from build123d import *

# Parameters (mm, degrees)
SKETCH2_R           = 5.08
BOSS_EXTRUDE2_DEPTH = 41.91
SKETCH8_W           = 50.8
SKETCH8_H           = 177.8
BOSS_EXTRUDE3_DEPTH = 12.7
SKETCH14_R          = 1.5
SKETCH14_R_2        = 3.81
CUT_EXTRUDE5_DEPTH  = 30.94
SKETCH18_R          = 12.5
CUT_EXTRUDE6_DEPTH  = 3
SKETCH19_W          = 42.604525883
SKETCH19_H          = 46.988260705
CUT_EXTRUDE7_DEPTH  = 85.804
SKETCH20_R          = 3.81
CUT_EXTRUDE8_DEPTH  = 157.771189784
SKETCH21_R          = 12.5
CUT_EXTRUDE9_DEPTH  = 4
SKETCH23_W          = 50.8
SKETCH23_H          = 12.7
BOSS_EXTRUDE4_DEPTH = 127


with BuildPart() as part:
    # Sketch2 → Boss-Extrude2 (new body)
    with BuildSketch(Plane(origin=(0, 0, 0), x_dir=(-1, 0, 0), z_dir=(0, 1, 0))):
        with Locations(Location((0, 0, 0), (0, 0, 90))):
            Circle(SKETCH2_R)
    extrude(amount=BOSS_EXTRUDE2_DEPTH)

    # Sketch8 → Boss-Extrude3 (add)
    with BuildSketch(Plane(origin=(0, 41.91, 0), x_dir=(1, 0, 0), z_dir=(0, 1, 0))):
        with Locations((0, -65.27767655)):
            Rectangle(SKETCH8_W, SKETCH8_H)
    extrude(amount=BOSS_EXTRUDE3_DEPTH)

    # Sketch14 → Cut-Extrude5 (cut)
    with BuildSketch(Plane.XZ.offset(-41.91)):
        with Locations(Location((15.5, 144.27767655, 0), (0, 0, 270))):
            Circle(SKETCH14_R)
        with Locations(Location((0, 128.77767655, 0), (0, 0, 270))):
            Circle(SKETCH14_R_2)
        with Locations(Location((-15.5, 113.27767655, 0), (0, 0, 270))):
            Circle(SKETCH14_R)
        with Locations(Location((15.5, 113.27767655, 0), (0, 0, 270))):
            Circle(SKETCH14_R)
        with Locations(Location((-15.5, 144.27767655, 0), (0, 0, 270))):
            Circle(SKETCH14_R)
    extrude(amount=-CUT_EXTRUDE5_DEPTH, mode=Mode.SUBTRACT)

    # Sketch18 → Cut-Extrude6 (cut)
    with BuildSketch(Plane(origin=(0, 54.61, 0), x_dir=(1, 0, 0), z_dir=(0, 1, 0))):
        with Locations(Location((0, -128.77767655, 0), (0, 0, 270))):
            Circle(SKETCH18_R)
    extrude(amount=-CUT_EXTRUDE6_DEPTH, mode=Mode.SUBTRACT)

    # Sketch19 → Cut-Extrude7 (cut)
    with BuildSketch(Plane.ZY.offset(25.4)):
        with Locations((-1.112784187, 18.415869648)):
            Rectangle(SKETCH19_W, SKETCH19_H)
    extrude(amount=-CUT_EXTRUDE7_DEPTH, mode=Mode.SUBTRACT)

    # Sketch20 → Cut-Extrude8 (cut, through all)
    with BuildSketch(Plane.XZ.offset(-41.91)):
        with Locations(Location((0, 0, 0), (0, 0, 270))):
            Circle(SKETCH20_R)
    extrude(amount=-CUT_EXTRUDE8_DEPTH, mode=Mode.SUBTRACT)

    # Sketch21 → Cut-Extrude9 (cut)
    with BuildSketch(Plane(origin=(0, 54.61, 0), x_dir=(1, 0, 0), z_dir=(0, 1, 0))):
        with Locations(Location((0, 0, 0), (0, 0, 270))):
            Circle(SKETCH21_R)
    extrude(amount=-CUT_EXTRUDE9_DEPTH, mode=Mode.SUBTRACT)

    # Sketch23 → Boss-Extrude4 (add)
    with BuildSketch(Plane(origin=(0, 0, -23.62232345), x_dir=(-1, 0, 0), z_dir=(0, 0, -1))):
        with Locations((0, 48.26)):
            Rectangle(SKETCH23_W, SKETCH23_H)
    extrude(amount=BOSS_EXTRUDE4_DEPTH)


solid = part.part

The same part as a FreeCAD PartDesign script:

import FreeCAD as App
import Part
import Sketcher

V = App.Vector
Q = App.Units.Quantity

doc = App.newDocument("Part")
body = doc.addObject("PartDesign::Body", "Body")

sketch1 = doc.addObject("Sketcher::SketchObject", "Sketch")
body.addObject(sketch1)
sketch1.AttachmentSupport = (doc.XZ_Plane, [""])
sketch1.MapMode = "FlatFace"
sketch1.addGeometry(Part.Circle(V(0, 0, 0), V(0, 0, 1), 5), False)
sketch1.addConstraint([
    Sketcher.Constraint("Coincident", 0, 3, -1, 1),
    Sketcher.Constraint("Diameter", 0, Q("0.4 in")),
])
pad1 = doc.addObject("PartDesign::Pad", "Pad")
body.addObject(pad1)
pad1.Profile = sketch1
pad1.Length = Q("1.65 in")
pad1.Reversed = True

sketch2 = doc.addObject("Sketcher::SketchObject", "Sketch001")
body.addObject(sketch2)
sketch2.AttachmentSupport = (doc.XZ_Plane, [""])
sketch2.MapMode = "FlatFace"
sketch2.AttachmentOffset = App.Placement(V(0, 0, -1.65 * 25.4), App.Rotation())
sketch2.addGeometry([
    Part.LineSegment(V(-25, -24, 0), V(-25, 154, 0)),
    Part.LineSegment(V(-25, 154, 0), V(25, 154, 0)),
    Part.LineSegment(V(25, 154, 0), V(25, -24, 0)),
    Part.LineSegment(V(25, -24, 0), V(-25, -24, 0)),
], False)
sketch2.addConstraint([
    Sketcher.Constraint("Coincident", 0, 2, 1, 1),
    Sketcher.Constraint("Coincident", 1, 2, 2, 1),
    Sketcher.Constraint("Coincident", 2, 2, 3, 1),
    Sketcher.Constraint("Coincident", 3, 2, 0, 1),
    Sketcher.Constraint("Vertical", 0),
    Sketcher.Constraint("Horizontal", 1),
    Sketcher.Constraint("Vertical", 2),
    Sketcher.Constraint("Horizontal", 3),
    Sketcher.Constraint("DistanceX", 1, 1, 1, 2, Q("2 in")),
    Sketcher.Constraint("DistanceY", 0, 1, 0, 2, Q("7 in")),
    Sketcher.Constraint("DistanceX", 0, 2, -1, 1, Q("1 in")),
    Sketcher.Constraint("DistanceY", -1, 1, 0, 2, Q("154.177677 mm")),
])
pad2 = doc.addObject("PartDesign::Pad", "Pad001")
body.addObject(pad2)
pad2.Profile = sketch2
pad2.Length = Q("0.5 in")
pad2.Reversed = True

sketch3 = doc.addObject("Sketcher::SketchObject", "Sketch002")
body.addObject(sketch3)
sketch3.AttachmentSupport = (doc.XZ_Plane, [""])
sketch3.MapMode = "FlatFace"
sketch3.AttachmentOffset = App.Placement(V(0, 0, -1.65 * 25.4), App.Rotation())
sketch3.addGeometry([
    Part.Circle(V(15.5, 144.3, 0), V(0, 0, 1), 1.5),
    Part.Circle(V(0, 128.8, 0), V(0, 0, 1), 3.8),
    Part.Circle(V(-15.5, 113.3, 0), V(0, 0, 1), 1.5),
    Part.Circle(V(15.5, 113.3, 0), V(0, 0, 1), 1.5),
    Part.Circle(V(-15.5, 144.3, 0), V(0, 0, 1), 1.5),
], False)
sketch3.addConstraint([
    Sketcher.Constraint("Equal", 0, 2),
    Sketcher.Constraint("Equal", 2, 3),
    Sketcher.Constraint("Equal", 3, 4),
    Sketcher.Constraint("Symmetric", 2, 3, 3, 3, -2),
    Sketcher.Constraint("Symmetric", 0, 3, 4, 3, -2),
    Sketcher.Constraint("PointOnObject", 1, 3, -2),
    Sketcher.Constraint("Vertical", 0, 3, 3, 3),
    Sketcher.Constraint("Diameter", 1, Q("0.3 in")),
    Sketcher.Constraint("Diameter", 0, Q("3 mm")),
    Sketcher.Constraint("DistanceX", -1, 1, 0, 3, Q("15.5 mm")),
    Sketcher.Constraint("DistanceY", 1, 3, 0, 3, Q("15.5 mm")),
    Sketcher.Constraint("DistanceY", 2, 3, 1, 3, Q("15.5 mm")),
    Sketcher.Constraint("DistanceY", -1, 1, 0, 3, Q("144.277677 mm")),
])
pocket1 = doc.addObject("PartDesign::Pocket", "Pocket")
body.addObject(pocket1)
pocket1.Profile = sketch3
pocket1.Length = 30.94

sketch4 = doc.addObject("Sketcher::SketchObject", "Sketch003")
body.addObject(sketch4)
sketch4.AttachmentSupport = (doc.XZ_Plane, [""])
sketch4.MapMode = "FlatFace"
sketch4.AttachmentOffset = App.Placement(V(0, 0, -2.15 * 25.4), App.Rotation())
sketch4.addGeometry(Part.Circle(V(0, 129, 0), V(0, 0, 1), 12), False)
sketch4.addConstraint([
    Sketcher.Constraint("PointOnObject", 0, 3, -2),
    Sketcher.Constraint("Diameter", 0, Q("25 mm")),
    Sketcher.Constraint("DistanceY", -1, 1, 0, 3, Q("128.777677 mm")),
])
pocket2 = doc.addObject("PartDesign::Pocket", "Pocket001")
body.addObject(pocket2)
pocket2.Profile = sketch4
pocket2.Length = 3
pocket2.Reversed = True

sketch5 = doc.addObject("Sketcher::SketchObject", "Sketch004")
body.addObject(sketch5)
sketch5.AttachmentSupport = (doc.YZ_Plane, [""])
sketch5.MapMode = "FlatFace"
sketch5.AttachmentOffset = App.Placement(V(0, 0, -1 * 25.4), App.Rotation())
sketch5.addGeometry([
    Part.LineSegment(V(42, -22, 0), V(-5, -22, 0)),
    Part.LineSegment(V(-5, -22, 0), V(-5, 20, 0)),
    Part.LineSegment(V(-5, 20, 0), V(42, 20, 0)),
    Part.LineSegment(V(42, 20, 0), V(42, -22, 0)),
], False)
sketch5.addConstraint([
    Sketcher.Constraint("Coincident", 0, 2, 1, 1),
    Sketcher.Constraint("Coincident", 1, 2, 2, 1),
    Sketcher.Constraint("Coincident", 2, 2, 3, 1),
    Sketcher.Constraint("Coincident", 3, 2, 0, 1),
    Sketcher.Constraint("Horizontal", 0),
    Sketcher.Constraint("Vertical", 1),
    Sketcher.Constraint("Horizontal", 2),
    Sketcher.Constraint("Vertical", 3),
    Sketcher.Constraint("DistanceX", -1, 1, 2, 2, Q("1.65 in")),
    Sketcher.Constraint("DistanceX", 0, 2, 0, 1, Q("46.988261 mm")),
    Sketcher.Constraint("DistanceY", 1, 1, 1, 2, Q("42.604526 mm")),
    Sketcher.Constraint("DistanceY", -1, 1, 1, 2, Q("20.189479 mm")),
])
pocket3 = doc.addObject("PartDesign::Pocket", "Pocket002")
body.addObject(pocket3)
pocket3.Profile = sketch5
pocket3.Length = 85.804
pocket3.Reversed = True

sketch6 = doc.addObject("Sketcher::SketchObject", "Sketch005")
body.addObject(sketch6)
sketch6.AttachmentSupport = (doc.XZ_Plane, [""])
sketch6.MapMode = "FlatFace"
sketch6.AttachmentOffset = App.Placement(V(0, 0, -1.65 * 25.4), App.Rotation())
sketch6.addGeometry(Part.Circle(V(0, 0, 0), V(0, 0, 1), 3.8), False)
sketch6.addConstraint([
    Sketcher.Constraint("Coincident", 0, 3, -1, 1),
    Sketcher.Constraint("Diameter", 0, Q("0.3 in")),
])
pocket4 = doc.addObject("PartDesign::Pocket", "Pocket003")
body.addObject(pocket4)
pocket4.Profile = sketch6
pocket4.Type = "ThroughAll"

sketch7 = doc.addObject("Sketcher::SketchObject", "Sketch006")
body.addObject(sketch7)
sketch7.AttachmentSupport = (doc.XZ_Plane, [""])
sketch7.MapMode = "FlatFace"
sketch7.AttachmentOffset = App.Placement(V(0, 0, -2.15 * 25.4), App.Rotation())
sketch7.addGeometry(Part.Circle(V(0, 0, 0), V(0, 0, 1), 12), False)
sketch7.addConstraint([
    Sketcher.Constraint("Coincident", 0, 3, -1, 1),
    Sketcher.Constraint("Diameter", 0, Q("25 mm")),
])
pocket5 = doc.addObject("PartDesign::Pocket", "Pocket004")
body.addObject(pocket5)
pocket5.Profile = sketch7
pocket5.Length = 4
pocket5.Reversed = True

sketch8 = doc.addObject("Sketcher::SketchObject", "Sketch007")
body.addObject(sketch8)
sketch8.AttachmentSupport = (doc.XY_Plane, [""])
sketch8.MapMode = "FlatFace"
sketch8.AttachmentOffset = App.Placement(V(0, 0, -23.622323), App.Rotation())
sketch8.addGeometry([
    Part.LineSegment(V(25, 55, 0), V(25, 42, 0)),
    Part.LineSegment(V(25, 42, 0), V(-25, 42, 0)),
    Part.LineSegment(V(-25, 42, 0), V(-25, 55, 0)),
    Part.LineSegment(V(-25, 55, 0), V(25, 55, 0)),
], False)
sketch8.addConstraint([
    Sketcher.Constraint("Coincident", 0, 2, 1, 1),
    Sketcher.Constraint("Coincident", 1, 2, 2, 1),
    Sketcher.Constraint("Coincident", 2, 2, 3, 1),
    Sketcher.Constraint("Coincident", 3, 2, 0, 1),
    Sketcher.Constraint("Vertical", 0),
    Sketcher.Constraint("Horizontal", 1),
    Sketcher.Constraint("Vertical", 2),
    Sketcher.Constraint("Horizontal", 3),
    Sketcher.Constraint("DistanceX", 1, 2, 1, 1, Q("2 in")),
    Sketcher.Constraint("DistanceY", 0, 2, 0, 1, Q("0.5 in")),
    Sketcher.Constraint("DistanceX", -1, 1, 0, 2, Q("1 in")),
    Sketcher.Constraint("DistanceY", -1, 1, 0, 2, Q("1.65 in")),
])
pad3 = doc.addObject("PartDesign::Pad", "Pad002")
body.addObject(pad3)
pad3.Profile = sketch8
pad3.Length = Q("5 in")
pad3.Reversed = True

doc.recompute()
